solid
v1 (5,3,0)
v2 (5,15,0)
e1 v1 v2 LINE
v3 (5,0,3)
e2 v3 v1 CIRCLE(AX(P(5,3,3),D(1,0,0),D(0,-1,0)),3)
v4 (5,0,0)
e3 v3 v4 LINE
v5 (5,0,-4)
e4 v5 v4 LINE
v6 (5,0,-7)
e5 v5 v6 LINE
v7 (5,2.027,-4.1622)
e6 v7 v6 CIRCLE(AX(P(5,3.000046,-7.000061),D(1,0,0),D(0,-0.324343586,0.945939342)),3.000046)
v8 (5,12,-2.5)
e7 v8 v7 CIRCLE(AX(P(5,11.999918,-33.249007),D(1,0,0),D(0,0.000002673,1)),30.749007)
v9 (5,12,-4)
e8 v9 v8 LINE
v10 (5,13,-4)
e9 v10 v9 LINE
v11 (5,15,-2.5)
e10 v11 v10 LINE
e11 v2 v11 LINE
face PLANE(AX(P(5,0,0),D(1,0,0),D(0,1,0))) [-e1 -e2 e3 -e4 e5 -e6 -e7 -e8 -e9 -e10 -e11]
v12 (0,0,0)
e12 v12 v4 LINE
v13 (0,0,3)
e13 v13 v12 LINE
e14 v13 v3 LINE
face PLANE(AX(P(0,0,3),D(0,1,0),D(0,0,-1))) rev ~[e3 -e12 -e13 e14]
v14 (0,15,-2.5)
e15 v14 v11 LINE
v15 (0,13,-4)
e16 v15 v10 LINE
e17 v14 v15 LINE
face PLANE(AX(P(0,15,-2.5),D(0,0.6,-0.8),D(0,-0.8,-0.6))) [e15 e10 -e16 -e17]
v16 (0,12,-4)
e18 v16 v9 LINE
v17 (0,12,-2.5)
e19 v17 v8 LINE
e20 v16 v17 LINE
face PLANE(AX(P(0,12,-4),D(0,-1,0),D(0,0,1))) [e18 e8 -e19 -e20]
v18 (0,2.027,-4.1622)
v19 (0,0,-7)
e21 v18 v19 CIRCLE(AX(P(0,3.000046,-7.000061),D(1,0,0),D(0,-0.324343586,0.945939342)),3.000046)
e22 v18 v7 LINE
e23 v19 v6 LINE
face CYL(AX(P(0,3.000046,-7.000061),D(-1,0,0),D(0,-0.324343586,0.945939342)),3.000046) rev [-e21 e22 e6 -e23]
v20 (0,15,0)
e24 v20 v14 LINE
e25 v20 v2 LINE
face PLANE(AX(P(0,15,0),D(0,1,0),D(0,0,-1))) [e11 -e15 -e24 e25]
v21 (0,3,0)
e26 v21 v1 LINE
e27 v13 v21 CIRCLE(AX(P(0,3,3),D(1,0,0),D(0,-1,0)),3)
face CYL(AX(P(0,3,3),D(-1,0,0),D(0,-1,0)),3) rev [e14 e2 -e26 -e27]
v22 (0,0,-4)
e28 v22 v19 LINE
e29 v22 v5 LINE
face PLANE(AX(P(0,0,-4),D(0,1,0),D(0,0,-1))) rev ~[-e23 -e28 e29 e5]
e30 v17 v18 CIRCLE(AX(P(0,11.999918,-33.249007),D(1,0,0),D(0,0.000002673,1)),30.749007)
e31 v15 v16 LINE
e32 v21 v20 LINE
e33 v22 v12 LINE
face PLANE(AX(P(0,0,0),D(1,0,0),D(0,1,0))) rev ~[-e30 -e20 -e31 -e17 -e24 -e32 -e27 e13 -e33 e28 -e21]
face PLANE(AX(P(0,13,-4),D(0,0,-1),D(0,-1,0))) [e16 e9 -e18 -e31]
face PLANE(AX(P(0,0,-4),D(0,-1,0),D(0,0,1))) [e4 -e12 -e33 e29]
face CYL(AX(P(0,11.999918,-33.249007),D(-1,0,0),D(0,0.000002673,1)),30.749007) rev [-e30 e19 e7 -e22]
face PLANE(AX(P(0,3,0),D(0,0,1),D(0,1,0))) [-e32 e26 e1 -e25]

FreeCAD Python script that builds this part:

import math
import FreeCAD as App
import Part
import Sketcher
Q = App.Units.Quantity

doc = App.newDocument("Part")
body = doc.addObject("PartDesign::Body", "Body")

sketch1 = body.newObject("Sketcher::SketchObject", "Sketch")
sketch1.AttachmentSupport = (doc.getObject("YZ_Plane"), [""])
sketch1.MapMode = "FlatFace"
sketch1.addGeometry([
    Part.LineSegment(App.Vector(15, 0, 0), App.Vector(3, 0, 0)),
    Part.ArcOfCircle(Part.Circle(App.Vector(3, 3, 0), App.Vector(0, 0, 1), 3), math.radians(180), math.radians(270)),
    Part.LineSegment(App.Vector(0, 3, 0), App.Vector(0, -7, 0)),
    Part.ArcOfCircle(Part.Circle(App.Vector(3, -7, 0), App.Vector(0, 0, 1), 3), math.radians(109), math.radians(180)),
    Part.ArcOfCircle(Part.Circle(App.Vector(12, -33.2, 0), App.Vector(0, 0, 1), 30.8), math.radians(90), math.radians(108.92)),
    Part.LineSegment(App.Vector(12, -2.5, 0), App.Vector(12, -4, 0)),
    Part.LineSegment(App.Vector(12, -4, 0), App.Vector(13, -4, 0)),
    Part.LineSegment(App.Vector(13, -4, 0), App.Vector(15, -2.5, 0)),
    Part.LineSegment(App.Vector(15, -2.5, 0), App.Vector(15, 0, 0)),
], False)
sketch1.addConstraint([
    Sketcher.Constraint("Tangent", 0, 2, 1, 2),
    Sketcher.Constraint("Tangent", 1, 1, 2, 1),
    Sketcher.Constraint("Tangent", 2, 2, 3, 2),
    Sketcher.Constraint("Tangent", 3, 1, 4, 2),
    Sketcher.Constraint("Coincident", 4, 1, 5, 1),
    Sketcher.Constraint("Coincident", 5, 2, 6, 1),
    Sketcher.Constraint("Coincident", 6, 2, 7, 1),
    Sketcher.Constraint("Coincident", 7, 2, 8, 1),
    Sketcher.Constraint("Coincident", 8, 2, 0, 1),
    Sketcher.Constraint("Horizontal", 0),
    Sketcher.Constraint("Vertical", 2),
    Sketcher.Constraint("Vertical", 5),
    Sketcher.Constraint("Horizontal", 6),
    Sketcher.Constraint("Vertical", 8),
    Sketcher.Constraint("Equal", 1, 3),
    Sketcher.Constraint("PointOnObject", 0, 2, -1),
    Sketcher.Constraint("PointOnObject", 1, 1, -2),
    Sketcher.Constraint("Horizontal", 4, 1, 7, 2),
    Sketcher.Constraint("Radius", 1, Q("3 mm")),
    Sketcher.Constraint("DistanceX", 0, 2, 0, 1, Q("12 mm")),
    Sketcher.Constraint("DistanceX", 6, 1, 6, 2, Q("1 mm")),
    Sketcher.Constraint("DistanceY", 5, 2, 5, 1, Q("1.5 mm")),
    Sketcher.Constraint("DistanceY", 8, 1, 8, 2, Q("2.5 mm")),
    Sketcher.Constraint("DistanceX", -1, 1, 4, 3, Q("12 mm")),
    Sketcher.Constraint("DistanceX", -1, 1, 4, 1, Q("12 mm")),
    Sketcher.Constraint("DistanceY", 3, 3, 5, 2, Q("3 mm")),
])
pad1 = body.newObject("PartDesign::Pad", "Pad")
pad1.Profile = sketch1
pad1.Length = 5

doc.recompute()
